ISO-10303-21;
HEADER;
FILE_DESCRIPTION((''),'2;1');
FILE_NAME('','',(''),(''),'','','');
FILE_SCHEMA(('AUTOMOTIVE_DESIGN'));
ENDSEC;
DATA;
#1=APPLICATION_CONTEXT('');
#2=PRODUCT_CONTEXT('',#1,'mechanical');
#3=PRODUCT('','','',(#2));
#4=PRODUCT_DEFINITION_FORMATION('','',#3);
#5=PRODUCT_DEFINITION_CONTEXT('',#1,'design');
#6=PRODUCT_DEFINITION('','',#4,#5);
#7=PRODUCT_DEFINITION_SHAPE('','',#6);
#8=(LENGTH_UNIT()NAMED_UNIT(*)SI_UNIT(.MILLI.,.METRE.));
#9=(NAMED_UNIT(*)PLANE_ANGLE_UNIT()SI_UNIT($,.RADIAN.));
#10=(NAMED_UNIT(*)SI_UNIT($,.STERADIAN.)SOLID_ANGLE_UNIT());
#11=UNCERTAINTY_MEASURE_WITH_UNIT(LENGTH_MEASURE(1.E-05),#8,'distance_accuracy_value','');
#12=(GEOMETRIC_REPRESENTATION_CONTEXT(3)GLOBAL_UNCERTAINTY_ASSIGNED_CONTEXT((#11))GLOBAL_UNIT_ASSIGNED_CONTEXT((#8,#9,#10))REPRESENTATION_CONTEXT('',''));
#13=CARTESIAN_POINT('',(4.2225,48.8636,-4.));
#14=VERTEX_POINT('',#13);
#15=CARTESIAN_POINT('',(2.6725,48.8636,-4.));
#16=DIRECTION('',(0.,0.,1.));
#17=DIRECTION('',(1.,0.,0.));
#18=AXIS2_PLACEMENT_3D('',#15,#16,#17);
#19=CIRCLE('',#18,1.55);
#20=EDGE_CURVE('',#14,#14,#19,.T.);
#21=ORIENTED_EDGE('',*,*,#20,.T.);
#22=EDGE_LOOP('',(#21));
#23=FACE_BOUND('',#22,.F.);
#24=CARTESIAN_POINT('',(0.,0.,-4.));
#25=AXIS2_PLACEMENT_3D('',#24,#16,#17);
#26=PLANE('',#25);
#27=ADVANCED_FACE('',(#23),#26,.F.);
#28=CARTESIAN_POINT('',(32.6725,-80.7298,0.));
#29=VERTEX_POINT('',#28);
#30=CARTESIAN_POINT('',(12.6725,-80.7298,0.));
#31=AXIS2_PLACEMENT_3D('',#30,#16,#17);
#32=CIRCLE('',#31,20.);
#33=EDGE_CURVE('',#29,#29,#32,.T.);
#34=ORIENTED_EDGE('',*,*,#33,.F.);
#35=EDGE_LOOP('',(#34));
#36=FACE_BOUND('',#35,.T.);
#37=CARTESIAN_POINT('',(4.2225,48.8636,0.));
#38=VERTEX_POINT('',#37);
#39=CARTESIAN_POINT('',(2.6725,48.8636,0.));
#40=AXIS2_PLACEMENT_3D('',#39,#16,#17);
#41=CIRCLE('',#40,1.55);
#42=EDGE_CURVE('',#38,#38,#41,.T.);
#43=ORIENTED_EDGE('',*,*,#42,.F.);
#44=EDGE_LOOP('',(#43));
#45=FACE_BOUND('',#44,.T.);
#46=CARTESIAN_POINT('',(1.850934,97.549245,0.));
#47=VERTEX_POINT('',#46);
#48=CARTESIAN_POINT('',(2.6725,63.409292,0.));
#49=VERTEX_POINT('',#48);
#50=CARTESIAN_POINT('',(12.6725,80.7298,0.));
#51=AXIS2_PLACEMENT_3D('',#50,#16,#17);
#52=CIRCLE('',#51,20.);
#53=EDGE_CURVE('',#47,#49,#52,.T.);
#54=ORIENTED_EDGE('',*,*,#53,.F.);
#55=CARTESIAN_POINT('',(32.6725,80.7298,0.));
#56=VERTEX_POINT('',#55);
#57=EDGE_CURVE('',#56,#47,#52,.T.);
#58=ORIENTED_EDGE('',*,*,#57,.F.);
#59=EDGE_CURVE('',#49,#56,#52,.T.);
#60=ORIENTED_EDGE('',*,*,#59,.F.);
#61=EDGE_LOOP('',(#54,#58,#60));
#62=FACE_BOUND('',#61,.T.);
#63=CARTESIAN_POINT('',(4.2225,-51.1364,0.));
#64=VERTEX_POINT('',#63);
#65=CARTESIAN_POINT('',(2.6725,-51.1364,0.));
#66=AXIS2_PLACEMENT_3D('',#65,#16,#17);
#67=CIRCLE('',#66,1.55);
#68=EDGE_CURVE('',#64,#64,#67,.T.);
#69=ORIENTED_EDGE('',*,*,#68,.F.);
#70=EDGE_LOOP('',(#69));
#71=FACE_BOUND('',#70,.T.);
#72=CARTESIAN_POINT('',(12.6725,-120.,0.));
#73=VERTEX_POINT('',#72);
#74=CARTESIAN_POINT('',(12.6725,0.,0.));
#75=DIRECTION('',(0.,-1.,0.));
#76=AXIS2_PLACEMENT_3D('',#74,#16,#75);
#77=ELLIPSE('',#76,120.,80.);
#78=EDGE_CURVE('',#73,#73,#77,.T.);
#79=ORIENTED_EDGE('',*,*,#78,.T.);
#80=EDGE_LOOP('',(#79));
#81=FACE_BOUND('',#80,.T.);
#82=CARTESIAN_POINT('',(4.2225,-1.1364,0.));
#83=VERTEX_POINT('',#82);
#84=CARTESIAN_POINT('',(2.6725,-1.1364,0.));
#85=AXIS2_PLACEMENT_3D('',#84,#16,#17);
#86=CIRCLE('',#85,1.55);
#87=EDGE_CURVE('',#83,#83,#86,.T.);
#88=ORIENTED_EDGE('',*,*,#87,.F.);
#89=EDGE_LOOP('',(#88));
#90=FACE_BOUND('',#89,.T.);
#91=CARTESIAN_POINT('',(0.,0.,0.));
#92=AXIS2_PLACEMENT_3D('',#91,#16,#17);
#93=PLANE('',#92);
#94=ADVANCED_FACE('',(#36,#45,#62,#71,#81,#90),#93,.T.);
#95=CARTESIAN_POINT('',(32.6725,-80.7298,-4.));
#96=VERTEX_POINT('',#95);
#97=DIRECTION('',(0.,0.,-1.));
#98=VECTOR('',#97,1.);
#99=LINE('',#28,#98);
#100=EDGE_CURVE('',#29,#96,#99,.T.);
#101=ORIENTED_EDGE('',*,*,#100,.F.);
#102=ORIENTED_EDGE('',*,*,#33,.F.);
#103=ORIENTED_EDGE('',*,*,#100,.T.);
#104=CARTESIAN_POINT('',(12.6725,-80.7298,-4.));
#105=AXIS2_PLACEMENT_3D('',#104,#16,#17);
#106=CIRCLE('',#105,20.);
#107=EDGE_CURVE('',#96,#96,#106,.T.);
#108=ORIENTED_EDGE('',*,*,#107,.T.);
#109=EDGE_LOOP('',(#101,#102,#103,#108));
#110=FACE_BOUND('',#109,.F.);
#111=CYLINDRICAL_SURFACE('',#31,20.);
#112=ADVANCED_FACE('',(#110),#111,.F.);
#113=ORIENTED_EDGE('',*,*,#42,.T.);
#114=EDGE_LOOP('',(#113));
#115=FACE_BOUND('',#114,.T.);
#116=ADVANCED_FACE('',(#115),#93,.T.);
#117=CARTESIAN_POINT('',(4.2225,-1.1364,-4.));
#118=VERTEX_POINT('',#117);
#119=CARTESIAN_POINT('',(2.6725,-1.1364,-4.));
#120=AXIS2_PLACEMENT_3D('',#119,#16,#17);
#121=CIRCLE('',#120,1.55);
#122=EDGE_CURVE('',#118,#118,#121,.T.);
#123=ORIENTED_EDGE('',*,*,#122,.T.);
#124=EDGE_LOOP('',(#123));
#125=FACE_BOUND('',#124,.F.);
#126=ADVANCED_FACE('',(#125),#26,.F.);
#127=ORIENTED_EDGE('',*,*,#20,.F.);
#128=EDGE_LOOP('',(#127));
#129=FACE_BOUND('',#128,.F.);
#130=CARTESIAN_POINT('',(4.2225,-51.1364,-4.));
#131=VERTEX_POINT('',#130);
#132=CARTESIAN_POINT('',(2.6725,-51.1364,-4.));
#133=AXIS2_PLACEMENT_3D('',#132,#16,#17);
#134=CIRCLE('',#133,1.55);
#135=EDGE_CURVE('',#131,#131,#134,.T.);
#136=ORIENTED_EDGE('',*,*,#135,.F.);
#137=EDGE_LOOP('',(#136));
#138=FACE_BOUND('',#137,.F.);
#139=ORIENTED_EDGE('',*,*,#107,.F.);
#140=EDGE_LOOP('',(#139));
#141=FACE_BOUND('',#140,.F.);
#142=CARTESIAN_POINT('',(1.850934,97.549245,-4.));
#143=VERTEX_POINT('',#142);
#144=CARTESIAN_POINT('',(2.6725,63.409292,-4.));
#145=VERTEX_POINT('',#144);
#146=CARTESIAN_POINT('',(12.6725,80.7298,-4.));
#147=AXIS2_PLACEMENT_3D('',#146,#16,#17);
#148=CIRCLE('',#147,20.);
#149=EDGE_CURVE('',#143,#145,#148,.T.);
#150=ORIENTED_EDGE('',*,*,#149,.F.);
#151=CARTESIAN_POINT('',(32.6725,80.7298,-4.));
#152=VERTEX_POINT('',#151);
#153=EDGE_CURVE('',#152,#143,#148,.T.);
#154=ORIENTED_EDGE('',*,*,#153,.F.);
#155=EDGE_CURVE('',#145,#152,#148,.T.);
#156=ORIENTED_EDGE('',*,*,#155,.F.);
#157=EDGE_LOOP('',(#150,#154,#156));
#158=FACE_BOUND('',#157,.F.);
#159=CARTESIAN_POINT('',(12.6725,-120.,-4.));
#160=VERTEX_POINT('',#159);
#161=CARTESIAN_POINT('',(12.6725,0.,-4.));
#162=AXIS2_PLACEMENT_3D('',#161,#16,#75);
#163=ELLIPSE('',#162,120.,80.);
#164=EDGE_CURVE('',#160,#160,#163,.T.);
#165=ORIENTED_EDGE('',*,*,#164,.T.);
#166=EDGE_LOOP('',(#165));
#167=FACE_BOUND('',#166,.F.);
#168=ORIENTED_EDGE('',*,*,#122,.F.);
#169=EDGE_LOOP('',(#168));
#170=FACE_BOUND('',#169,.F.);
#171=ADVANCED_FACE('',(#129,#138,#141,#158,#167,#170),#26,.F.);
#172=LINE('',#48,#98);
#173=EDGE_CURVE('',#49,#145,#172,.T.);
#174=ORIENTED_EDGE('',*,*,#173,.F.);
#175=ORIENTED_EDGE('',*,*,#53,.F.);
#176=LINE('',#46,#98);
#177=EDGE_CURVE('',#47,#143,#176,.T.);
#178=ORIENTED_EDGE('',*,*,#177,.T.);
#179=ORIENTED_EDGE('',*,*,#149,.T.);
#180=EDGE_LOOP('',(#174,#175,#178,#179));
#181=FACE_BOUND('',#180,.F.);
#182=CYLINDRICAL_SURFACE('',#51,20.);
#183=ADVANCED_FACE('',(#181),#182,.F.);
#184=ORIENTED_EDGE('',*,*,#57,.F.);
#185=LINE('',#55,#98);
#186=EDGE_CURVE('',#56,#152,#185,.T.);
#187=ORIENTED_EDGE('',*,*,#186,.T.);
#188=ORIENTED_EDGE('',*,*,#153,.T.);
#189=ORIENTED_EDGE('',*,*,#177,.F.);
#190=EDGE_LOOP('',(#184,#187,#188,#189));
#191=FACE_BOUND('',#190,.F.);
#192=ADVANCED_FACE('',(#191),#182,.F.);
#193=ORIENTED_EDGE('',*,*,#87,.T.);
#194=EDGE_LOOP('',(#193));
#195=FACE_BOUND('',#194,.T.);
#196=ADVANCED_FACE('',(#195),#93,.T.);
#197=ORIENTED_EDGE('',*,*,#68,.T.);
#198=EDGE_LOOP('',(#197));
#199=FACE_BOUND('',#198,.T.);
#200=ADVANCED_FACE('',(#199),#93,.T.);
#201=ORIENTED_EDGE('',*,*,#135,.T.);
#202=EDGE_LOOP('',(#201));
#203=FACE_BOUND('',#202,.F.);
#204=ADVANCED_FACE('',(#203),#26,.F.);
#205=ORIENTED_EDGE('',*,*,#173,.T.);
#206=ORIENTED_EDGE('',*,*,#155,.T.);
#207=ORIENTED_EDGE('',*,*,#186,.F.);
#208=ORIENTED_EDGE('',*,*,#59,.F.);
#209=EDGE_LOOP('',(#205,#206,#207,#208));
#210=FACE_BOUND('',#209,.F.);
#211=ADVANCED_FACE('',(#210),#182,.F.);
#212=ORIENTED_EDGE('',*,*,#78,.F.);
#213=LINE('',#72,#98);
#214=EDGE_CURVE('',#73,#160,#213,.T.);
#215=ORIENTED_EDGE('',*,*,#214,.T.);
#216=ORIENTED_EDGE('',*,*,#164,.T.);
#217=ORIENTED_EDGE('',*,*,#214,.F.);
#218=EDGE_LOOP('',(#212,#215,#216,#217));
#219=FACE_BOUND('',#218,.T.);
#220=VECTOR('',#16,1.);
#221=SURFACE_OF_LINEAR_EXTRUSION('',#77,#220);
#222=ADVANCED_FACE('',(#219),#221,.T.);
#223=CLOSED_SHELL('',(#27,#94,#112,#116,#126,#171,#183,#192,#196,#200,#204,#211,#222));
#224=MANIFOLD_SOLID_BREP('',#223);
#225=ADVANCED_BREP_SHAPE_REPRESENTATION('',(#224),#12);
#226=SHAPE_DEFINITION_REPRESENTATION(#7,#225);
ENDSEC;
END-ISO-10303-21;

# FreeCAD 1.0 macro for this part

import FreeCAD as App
import Part
import Sketcher
Q = App.Units.Quantity

doc = App.newDocument("Part")
body = doc.addObject("PartDesign::Body", "Body")

# Sketch on XY plane
sketch1 = body.newObject("Sketcher::SketchObject", "Sketch")
sketch1.AttachmentSupport = (doc.getObject("XY_Plane"), [""])
sketch1.MapMode = "FlatFace"
sketch1.addGeometry([
    Part.Ellipse(App.Vector(12.6725, -120, 0), App.Vector(92.6725, 0, 0), App.Vector(12.6725, 0, 0)),
    Part.Circle(App.Vector(12.6725, -80.7298, 0), App.Vector(0, 0, 1), 20),
    Part.Circle(App.Vector(12.6725, 80.7298, 0), App.Vector(0, 0, 1), 20),
], False)
sketch1.addConstraint([
    Sketcher.Constraint("Block", 0),
    Sketcher.Constraint("Equal", 1, 2),
    Sketcher.Constraint("Symmetric", 1, 3, 2, 3, -1),
    Sketcher.Constraint("Diameter", 1, Q("40 mm")),
    Sketcher.Constraint("DistanceX", -1, 1, 1, 3, Q("12.6725 mm")),
    Sketcher.Constraint("DistanceY", 1, 3, -1, 1, Q("80.7298 mm")),
])
pad1 = body.newObject("PartDesign::Pad", "Pad")
pad1.Profile = sketch1
pad1.Length = 4
pad1.Reversed = True

doc.recompute()
